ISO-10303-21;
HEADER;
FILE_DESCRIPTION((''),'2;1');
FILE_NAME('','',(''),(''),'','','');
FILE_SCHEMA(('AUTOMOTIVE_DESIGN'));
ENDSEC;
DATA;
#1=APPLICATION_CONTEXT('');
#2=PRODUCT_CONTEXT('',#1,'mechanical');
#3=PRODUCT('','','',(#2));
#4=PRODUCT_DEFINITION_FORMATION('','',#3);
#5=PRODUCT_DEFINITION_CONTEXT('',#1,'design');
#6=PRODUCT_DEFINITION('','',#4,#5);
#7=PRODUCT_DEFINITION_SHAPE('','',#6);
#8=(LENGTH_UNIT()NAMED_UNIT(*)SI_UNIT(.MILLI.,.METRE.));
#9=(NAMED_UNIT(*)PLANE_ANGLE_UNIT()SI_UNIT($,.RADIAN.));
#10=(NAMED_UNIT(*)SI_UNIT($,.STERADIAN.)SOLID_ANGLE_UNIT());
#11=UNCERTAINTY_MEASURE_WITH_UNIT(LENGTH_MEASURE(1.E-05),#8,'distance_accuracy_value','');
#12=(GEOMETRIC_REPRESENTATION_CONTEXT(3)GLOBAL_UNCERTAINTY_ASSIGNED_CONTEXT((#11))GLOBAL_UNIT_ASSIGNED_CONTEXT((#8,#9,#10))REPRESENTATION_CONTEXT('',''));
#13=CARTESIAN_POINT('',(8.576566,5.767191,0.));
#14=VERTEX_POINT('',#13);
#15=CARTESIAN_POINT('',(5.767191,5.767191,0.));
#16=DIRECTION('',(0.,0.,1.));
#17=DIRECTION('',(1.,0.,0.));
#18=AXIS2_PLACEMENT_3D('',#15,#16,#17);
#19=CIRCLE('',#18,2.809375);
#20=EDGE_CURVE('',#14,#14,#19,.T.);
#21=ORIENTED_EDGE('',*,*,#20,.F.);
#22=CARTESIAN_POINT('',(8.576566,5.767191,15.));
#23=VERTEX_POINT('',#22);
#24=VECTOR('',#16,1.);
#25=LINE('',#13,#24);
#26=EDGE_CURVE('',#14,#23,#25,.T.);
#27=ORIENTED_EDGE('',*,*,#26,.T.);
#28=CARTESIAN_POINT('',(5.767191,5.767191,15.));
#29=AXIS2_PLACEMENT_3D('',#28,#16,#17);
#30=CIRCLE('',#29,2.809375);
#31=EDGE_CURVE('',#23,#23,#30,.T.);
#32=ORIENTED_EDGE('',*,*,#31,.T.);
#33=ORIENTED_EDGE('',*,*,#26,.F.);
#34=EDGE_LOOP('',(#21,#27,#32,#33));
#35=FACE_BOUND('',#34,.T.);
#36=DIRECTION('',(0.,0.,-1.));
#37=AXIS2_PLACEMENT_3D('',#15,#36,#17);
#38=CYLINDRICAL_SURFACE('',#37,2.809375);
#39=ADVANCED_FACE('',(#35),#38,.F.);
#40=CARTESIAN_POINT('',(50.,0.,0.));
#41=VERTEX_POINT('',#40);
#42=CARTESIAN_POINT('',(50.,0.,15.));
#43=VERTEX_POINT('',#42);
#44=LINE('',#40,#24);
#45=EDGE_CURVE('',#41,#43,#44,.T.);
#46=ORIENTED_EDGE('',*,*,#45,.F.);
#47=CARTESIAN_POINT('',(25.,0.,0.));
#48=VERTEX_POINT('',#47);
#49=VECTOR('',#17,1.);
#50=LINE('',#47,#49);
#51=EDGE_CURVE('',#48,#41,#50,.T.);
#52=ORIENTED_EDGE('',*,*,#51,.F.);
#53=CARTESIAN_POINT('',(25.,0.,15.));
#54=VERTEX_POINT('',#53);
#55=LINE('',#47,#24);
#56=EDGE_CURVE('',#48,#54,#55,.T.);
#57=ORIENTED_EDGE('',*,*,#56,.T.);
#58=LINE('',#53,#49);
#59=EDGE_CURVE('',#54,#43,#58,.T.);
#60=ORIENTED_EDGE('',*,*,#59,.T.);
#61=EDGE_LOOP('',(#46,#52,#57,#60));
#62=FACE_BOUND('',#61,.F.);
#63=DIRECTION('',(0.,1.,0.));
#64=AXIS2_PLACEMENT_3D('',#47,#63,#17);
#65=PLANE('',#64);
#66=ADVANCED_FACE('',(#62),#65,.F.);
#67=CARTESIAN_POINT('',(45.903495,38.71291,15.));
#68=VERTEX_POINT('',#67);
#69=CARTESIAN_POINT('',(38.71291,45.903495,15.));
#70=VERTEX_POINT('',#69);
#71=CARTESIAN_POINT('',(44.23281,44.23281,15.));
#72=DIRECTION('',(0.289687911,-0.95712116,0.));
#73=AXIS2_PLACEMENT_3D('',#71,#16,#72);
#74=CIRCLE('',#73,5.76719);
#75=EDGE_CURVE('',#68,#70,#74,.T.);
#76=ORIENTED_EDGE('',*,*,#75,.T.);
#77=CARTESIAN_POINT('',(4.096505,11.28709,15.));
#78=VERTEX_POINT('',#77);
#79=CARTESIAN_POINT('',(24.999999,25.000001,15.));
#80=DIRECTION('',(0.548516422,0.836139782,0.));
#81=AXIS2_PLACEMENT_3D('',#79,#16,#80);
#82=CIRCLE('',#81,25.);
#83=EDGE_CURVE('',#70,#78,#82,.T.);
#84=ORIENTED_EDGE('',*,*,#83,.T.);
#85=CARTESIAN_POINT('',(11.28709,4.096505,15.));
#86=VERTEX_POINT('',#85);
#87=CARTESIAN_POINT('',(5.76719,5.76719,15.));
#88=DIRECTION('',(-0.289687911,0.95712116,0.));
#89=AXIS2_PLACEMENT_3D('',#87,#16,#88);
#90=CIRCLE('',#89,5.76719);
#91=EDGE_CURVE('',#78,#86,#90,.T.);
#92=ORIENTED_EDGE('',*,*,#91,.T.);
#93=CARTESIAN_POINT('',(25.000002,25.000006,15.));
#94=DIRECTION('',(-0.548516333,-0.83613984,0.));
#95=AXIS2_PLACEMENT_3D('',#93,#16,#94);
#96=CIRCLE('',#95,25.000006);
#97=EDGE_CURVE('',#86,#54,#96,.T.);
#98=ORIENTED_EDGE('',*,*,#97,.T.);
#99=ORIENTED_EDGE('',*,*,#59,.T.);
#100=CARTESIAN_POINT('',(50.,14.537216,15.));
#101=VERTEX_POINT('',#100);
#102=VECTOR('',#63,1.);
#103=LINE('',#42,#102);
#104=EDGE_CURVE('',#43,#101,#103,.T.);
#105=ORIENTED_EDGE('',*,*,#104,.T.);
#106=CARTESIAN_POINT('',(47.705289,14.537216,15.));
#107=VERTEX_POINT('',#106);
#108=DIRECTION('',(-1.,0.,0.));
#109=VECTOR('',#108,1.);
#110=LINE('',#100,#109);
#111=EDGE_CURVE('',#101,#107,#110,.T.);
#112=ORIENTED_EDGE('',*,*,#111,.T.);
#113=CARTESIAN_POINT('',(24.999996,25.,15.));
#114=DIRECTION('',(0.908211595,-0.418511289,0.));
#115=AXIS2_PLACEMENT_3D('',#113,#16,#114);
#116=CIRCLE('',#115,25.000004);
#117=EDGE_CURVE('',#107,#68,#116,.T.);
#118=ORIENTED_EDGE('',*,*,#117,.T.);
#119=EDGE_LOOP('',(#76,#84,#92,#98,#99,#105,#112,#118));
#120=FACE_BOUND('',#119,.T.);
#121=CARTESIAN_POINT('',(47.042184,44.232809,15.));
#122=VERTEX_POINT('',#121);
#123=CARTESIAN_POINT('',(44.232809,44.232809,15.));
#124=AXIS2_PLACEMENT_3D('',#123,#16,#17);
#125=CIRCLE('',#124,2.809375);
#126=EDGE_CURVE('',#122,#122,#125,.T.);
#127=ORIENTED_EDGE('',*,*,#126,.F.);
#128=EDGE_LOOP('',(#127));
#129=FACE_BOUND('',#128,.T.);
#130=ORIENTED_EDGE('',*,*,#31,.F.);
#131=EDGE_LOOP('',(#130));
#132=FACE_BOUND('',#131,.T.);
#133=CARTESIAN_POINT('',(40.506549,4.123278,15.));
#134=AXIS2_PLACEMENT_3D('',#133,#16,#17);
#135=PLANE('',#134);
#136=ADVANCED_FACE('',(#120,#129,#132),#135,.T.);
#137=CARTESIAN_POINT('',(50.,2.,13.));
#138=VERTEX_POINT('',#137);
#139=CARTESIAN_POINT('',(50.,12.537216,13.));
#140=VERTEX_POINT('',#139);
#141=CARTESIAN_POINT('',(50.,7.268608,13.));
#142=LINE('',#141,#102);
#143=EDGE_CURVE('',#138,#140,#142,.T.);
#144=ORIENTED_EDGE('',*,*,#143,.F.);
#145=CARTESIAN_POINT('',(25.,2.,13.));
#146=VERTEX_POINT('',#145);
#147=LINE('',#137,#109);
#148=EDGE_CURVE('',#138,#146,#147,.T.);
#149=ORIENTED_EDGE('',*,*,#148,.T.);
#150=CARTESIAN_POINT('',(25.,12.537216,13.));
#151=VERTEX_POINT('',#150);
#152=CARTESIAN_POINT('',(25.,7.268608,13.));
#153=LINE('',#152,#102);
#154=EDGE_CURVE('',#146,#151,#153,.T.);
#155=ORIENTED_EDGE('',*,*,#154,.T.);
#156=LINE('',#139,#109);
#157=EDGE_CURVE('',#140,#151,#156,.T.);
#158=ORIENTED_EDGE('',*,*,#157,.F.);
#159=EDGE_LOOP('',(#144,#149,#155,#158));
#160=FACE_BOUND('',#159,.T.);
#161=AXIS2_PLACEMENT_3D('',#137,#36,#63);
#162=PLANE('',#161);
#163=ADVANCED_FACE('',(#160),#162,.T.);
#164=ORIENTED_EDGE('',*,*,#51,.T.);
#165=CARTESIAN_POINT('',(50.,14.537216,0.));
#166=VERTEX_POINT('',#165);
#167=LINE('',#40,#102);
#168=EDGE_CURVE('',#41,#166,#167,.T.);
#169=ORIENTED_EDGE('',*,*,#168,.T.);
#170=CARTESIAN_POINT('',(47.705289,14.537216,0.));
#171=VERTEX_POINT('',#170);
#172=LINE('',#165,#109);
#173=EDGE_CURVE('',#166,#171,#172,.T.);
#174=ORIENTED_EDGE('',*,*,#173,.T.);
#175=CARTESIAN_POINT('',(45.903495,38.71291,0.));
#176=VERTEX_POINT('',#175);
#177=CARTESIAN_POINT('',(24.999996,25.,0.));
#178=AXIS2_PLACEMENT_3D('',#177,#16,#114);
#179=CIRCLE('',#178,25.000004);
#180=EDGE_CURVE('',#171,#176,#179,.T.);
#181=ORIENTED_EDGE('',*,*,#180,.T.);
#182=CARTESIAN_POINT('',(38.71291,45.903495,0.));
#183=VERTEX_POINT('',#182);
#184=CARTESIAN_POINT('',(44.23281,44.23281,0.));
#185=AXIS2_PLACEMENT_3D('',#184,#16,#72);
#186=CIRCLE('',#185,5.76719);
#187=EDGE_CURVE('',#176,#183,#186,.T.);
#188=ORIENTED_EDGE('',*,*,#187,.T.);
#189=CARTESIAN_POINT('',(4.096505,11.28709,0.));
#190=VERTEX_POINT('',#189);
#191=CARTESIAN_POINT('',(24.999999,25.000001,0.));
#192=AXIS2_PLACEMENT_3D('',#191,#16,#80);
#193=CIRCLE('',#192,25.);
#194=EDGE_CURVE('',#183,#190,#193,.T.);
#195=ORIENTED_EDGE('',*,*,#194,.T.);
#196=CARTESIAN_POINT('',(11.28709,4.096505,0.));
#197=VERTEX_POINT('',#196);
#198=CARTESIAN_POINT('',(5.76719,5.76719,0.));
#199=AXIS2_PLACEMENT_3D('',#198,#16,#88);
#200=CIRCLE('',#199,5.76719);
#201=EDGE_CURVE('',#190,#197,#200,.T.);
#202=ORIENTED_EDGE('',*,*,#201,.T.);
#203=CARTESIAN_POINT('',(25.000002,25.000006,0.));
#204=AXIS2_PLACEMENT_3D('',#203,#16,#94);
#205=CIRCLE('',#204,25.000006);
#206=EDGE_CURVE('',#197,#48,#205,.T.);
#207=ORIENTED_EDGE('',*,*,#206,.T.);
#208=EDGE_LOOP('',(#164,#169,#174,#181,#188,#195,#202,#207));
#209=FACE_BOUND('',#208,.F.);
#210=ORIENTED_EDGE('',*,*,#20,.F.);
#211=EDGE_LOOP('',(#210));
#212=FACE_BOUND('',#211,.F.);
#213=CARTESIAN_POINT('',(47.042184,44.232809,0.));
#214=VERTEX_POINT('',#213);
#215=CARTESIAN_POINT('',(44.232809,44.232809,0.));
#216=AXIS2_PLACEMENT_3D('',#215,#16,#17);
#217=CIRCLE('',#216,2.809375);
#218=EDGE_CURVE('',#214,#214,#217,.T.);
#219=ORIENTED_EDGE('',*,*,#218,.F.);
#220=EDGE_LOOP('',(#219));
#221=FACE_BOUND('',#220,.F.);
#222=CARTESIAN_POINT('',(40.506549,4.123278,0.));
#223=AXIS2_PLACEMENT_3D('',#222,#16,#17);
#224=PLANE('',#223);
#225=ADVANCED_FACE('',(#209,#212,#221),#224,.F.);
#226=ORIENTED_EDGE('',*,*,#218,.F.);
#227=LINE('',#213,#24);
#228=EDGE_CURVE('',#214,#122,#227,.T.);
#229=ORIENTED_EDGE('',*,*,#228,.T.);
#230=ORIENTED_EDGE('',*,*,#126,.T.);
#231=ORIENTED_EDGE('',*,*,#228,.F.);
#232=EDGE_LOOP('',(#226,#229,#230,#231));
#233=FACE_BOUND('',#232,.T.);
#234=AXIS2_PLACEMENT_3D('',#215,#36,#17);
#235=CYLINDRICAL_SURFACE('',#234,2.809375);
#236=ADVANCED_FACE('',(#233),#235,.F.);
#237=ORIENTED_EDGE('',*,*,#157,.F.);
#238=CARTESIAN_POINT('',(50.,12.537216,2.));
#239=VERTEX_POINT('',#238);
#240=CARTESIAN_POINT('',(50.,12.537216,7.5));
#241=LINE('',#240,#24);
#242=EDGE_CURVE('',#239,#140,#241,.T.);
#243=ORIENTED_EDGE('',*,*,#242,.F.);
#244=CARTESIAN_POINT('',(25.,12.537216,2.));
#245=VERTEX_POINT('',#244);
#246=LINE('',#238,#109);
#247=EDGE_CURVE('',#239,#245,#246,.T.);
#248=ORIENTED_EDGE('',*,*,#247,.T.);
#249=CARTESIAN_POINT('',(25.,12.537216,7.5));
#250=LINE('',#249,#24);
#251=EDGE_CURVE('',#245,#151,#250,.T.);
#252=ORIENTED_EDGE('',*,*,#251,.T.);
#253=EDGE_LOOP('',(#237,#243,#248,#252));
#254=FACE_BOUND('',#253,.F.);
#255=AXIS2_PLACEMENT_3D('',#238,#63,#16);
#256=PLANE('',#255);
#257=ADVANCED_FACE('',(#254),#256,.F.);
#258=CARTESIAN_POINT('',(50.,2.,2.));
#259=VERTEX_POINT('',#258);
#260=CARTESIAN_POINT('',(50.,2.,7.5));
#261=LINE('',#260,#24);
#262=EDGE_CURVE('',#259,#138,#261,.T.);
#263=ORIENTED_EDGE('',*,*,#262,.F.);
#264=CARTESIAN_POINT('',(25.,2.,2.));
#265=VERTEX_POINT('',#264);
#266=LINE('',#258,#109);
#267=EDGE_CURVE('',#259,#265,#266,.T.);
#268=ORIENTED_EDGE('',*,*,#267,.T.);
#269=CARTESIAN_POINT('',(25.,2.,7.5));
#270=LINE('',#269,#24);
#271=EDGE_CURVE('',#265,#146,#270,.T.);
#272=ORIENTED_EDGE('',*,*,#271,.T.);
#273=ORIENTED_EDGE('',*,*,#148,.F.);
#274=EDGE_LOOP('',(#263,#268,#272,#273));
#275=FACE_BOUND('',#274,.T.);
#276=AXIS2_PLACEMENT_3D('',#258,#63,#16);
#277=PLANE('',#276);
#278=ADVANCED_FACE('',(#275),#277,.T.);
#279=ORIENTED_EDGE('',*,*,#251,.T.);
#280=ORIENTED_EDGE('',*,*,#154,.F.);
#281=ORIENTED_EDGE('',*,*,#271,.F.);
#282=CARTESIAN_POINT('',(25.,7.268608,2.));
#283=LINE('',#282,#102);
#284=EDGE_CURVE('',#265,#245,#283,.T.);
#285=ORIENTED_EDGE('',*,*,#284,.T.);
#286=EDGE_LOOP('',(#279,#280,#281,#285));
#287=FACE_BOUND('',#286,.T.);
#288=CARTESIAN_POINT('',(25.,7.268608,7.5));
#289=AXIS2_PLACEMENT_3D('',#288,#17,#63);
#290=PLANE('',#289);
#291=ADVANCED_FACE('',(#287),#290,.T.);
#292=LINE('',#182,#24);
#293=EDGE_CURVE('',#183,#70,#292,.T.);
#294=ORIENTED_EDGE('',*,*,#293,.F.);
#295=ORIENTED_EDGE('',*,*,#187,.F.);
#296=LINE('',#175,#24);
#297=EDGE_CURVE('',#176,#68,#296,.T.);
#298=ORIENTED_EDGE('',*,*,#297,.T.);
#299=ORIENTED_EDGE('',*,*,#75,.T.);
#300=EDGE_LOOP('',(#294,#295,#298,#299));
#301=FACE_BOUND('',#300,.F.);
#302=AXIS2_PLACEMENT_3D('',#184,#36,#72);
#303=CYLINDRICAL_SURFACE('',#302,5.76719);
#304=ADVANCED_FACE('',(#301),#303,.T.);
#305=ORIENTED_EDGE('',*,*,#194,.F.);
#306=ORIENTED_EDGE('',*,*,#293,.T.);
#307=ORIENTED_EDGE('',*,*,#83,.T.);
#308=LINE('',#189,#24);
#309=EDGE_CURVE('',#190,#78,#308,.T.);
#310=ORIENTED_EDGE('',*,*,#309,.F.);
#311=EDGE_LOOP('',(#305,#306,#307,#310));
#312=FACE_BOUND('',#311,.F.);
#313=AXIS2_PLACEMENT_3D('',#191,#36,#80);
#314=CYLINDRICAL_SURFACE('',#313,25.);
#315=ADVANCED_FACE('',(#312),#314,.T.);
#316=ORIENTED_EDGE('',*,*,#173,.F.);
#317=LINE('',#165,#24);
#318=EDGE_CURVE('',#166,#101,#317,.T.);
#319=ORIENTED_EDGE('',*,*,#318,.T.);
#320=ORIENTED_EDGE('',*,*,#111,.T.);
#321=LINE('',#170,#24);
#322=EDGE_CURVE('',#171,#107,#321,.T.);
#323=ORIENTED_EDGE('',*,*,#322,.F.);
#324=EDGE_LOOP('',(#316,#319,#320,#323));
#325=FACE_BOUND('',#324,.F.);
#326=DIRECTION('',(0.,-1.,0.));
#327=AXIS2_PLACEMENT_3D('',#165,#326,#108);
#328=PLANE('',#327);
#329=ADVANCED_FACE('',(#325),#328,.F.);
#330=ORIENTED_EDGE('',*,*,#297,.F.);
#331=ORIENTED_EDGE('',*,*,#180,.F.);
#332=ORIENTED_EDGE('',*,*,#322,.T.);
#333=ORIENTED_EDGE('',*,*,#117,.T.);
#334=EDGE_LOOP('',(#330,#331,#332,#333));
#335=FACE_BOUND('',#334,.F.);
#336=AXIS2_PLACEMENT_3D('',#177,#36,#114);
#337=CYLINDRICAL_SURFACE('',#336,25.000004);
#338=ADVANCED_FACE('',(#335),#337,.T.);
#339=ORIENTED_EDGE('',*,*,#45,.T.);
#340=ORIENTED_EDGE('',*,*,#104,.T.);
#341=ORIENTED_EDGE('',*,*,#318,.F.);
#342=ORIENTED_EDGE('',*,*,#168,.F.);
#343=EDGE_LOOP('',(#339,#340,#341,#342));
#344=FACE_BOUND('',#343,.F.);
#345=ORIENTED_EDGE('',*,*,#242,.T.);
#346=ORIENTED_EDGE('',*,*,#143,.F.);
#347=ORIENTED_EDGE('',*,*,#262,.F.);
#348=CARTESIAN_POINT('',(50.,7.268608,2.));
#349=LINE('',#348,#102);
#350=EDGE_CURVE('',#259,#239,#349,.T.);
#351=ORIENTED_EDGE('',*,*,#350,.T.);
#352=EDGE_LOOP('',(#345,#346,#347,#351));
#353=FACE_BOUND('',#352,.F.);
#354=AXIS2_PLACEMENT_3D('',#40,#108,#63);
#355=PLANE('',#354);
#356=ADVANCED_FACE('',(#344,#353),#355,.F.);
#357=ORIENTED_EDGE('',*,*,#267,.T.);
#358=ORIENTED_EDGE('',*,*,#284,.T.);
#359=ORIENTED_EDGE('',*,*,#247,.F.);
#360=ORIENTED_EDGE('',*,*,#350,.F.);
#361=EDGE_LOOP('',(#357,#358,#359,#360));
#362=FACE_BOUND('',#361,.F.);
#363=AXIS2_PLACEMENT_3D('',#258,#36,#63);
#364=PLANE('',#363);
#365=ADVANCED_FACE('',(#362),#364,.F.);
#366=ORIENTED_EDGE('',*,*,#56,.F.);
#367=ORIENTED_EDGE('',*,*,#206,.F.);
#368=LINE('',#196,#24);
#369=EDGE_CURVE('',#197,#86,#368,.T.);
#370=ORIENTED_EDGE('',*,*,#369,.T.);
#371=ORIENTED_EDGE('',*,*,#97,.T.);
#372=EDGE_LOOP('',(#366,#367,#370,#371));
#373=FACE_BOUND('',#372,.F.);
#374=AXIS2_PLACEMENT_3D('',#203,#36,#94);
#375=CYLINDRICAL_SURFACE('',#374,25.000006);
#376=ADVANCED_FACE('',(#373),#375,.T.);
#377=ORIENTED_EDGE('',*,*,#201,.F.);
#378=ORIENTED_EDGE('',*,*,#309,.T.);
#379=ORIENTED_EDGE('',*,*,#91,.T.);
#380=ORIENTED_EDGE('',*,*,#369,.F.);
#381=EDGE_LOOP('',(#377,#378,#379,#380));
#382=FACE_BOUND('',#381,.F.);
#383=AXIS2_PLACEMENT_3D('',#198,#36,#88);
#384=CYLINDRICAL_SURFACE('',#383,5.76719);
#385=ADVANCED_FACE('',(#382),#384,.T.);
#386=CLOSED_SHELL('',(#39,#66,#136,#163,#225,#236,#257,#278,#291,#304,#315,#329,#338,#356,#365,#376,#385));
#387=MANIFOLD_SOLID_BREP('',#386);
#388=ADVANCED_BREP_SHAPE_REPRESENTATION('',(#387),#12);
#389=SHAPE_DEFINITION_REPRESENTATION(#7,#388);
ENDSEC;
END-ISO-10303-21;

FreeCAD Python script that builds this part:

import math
import FreeCAD as App
import Part
import Sketcher
from FreeCAD import Vector
Q = App.Units.Quantity

doc = App.newDocument("Part")
body = doc.addObject("PartDesign::Body", "Body")

# Sketch on XY plane
sketch1 = doc.addObject("Sketcher::SketchObject", "Sketch")
body.addObject(sketch1)
sketch1.AttachmentSupport = (doc.XY_Plane, [""])
sketch1.MapMode = "FlatFace"
sketch1.addGeometry([
    Part.LineSegment(Vector(25, 0, 0), Vector(50, 0, 0)),  # 0
    Part.LineSegment(Vector(50, 0, 0), Vector(50, 14.537216, 0)),  # 1
    Part.LineSegment(Vector(50, 14.537216, 0), Vector(47.705289, 14.537216, 0)),  # 2
    Part.ArcOfCircle(Part.Circle(Vector(24.999996, 25, 0), Vector(0, 0, 1), 25.000004), math.radians(-24.740635), math.radians(33.265286)),  # 3
    Part.ArcOfCircle(Part.Circle(Vector(44.23281, 44.23281, 0), Vector(0, 0, 1), 5.76719), math.radians(-73.160727), math.radians(163.160727)),  # 4
    Part.ArcOfCircle(Part.Circle(Vector(24.999999, 25.000001, 0), Vector(0, 0, 1), 25), math.radians(56.734707), math.radians(213.265293)),  # 5
    Part.ArcOfCircle(Part.Circle(Vector(5.76719, 5.76719, 0), Vector(0, 0, 1), 5.76719), math.radians(106.839273), math.radians(343.160727)),  # 6
    Part.ArcOfCircle(Part.Circle(Vector(25.000002, 25.000006, 0), Vector(0, 0, 1), 25.000006), math.radians(-123.265287), math.radians(-90.000004)),  # 7
    Part.Circle(Vector(5.767191, 5.767191, 0), Vector(0, 0, 1), 2.809375),  # 8
    Part.Circle(Vector(44.232809, 44.232809, 0), Vector(0, 0, 1), 2.809375),  # 9
], False)
sketch1.addConstraint([
    Sketcher.Constraint("Coincident", 0, 2, 1, 1),
    Sketcher.Constraint("Coincident", 1, 2, 2, 1),
    Sketcher.Constraint("Coincident", 2, 2, 3, 1),
    Sketcher.Constraint("Coincident", 3, 2, 4, 1),
    Sketcher.Constraint("Coincident", 4, 2, 5, 1),
    Sketcher.Constraint("Coincident", 5, 2, 6, 1),
    Sketcher.Constraint("Coincident", 6, 2, 7, 1),
    Sketcher.Constraint("Tangent", 7, 2, 0, 1),
    Sketcher.Constraint("Horizontal", 0),
    Sketcher.Constraint("Vertical", 1),
    Sketcher.Constraint("Horizontal", 2),
    Sketcher.Constraint("Coincident", 5, 3, 3, 3),
    Sketcher.Constraint("Coincident", 7, 3, 3, 3),
    Sketcher.Constraint("Coincident", 8, 3, 6, 3),
    Sketcher.Constraint("Coincident", 9, 3, 4, 3),
    Sketcher.Constraint("Equal", 4, 6),
    Sketcher.Constraint("Equal", 8, 9),
    Sketcher.Constraint("PointOnObject", 0, 2, -1),
    Sketcher.Constraint("Radius", 5, Q("25 mm")),
    Sketcher.Constraint("DistanceX", 0, 1, 0, 2, Q("25 mm")),
    Sketcher.Constraint("DistanceY", -1, 1, 3, 3, Q("25 mm")),
    Sketcher.Constraint("DistanceX", -1, 1, 5, 3, Q("24.999999 mm")),
    Sketcher.Constraint("Diameter", 8, Q("5.61875 mm")),
    Sketcher.Constraint("Radius", 4, Q("5.76719 mm")),
    Sketcher.Constraint("Radius", 3, Q("25.000004 mm")),
    Sketcher.Constraint("DistanceX", 2, 2, 2, 1, Q("2.294711 mm")),
    Sketcher.Constraint("DistanceY", 3, 2, 9, 3, Q("5.519899 mm")),
    Sketcher.Constraint("DistanceX", 4, 2, 9, 3, Q("5.519899 mm")),
    Sketcher.Constraint("DistanceY", 8, 3, 5, 2, Q("5.519899 mm")),
    Sketcher.Constraint("DistanceX", 8, 3, 6, 2, Q("5.519899 mm")),
])
pad1 = doc.addObject("PartDesign::Pad", "Pad")
body.addObject(pad1)
pad1.Profile = sketch1
pad1.Length = 15

# Sketch on YZ plane
sketch2 = doc.addObject("Sketcher::SketchObject", "Sketch001")
body.addObject(sketch2)
sketch2.AttachmentSupport = (doc.YZ_Plane, [""])
sketch2.MapMode = "FlatFace"
sketch2.AttachmentOffset = App.Placement(Vector(0, 0, 50), App.Rotation())
sketch2.addGeometry([
    Part.LineSegment(Vector(2, 13, 0), Vector(2, 2, 0)),
    Part.LineSegment(Vector(2, 2, 0), Vector(12.537216, 2, 0)),
    Part.LineSegment(Vector(12.537216, 2, 0), Vector(12.537216, 13, 0)),
    Part.LineSegment(Vector(12.537216, 13, 0), Vector(2, 13, 0)),
], False)
sketch2.addConstraint([
    Sketcher.Constraint("Coincident", 0, 2, 1, 1),
    Sketcher.Constraint("Coincident", 1, 2, 2, 1),
    Sketcher.Constraint("Coincident", 2, 2, 3, 1),
    Sketcher.Constraint("Coincident", 3, 2, 0, 1),
    Sketcher.Constraint("Vertical", 0),
    Sketcher.Constraint("Horizontal", 1),
    Sketcher.Constraint("Vertical", 2),
    Sketcher.Constraint("Horizontal", 3),
    Sketcher.Constraint("DistanceY", 0, 2, 0, 1, Q("11 mm")),
    Sketcher.Constraint("DistanceX", -1, 1, 0, 2, Q("2 mm")),
    Sketcher.Constraint("DistanceY", -1, 1, 0, 2, Q("2 mm")),
    Sketcher.Constraint("DistanceX", 1, 1, 1, 2, Q("10.537216 mm")),
])
pocket1 = doc.addObject("PartDesign::Pocket", "Pocket")
body.addObject(pocket1)
pocket1.Profile = sketch2
pocket1.Length = 25

doc.recompute()
